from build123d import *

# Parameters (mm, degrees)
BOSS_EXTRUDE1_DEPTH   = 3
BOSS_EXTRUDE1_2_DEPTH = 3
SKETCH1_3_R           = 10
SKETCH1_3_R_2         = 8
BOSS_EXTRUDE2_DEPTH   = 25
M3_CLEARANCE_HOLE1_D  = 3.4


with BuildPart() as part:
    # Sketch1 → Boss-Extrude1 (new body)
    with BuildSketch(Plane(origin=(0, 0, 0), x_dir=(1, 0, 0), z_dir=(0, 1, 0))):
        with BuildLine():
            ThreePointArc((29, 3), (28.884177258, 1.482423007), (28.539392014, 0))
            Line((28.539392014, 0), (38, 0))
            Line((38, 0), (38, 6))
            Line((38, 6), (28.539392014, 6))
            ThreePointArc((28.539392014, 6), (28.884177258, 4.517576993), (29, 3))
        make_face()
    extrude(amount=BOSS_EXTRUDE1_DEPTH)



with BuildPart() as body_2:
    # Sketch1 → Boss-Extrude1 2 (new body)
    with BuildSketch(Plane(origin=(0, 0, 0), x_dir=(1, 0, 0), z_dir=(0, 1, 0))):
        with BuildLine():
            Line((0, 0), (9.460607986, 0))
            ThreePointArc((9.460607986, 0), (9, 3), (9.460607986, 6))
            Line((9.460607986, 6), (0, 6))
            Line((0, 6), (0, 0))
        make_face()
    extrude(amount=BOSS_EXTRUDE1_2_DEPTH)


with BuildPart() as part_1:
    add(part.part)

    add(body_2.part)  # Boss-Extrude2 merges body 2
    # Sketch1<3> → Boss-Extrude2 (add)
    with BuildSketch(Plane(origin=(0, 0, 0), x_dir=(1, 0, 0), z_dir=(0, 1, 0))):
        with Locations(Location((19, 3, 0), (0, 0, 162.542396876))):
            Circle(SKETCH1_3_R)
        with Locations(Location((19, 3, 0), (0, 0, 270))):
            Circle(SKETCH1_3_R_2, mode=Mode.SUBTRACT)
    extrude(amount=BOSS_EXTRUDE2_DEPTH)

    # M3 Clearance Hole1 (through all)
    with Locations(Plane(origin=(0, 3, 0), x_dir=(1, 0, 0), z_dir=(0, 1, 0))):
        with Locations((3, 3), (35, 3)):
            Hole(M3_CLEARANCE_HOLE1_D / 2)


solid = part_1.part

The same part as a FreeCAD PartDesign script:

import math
import FreeCAD as App
import Part
import Sketcher
from FreeCAD import Vector
Q = App.Units.Quantity

doc = App.newDocument("Part")
body = doc.addObject("PartDesign::Body", "Body")

# Sketch on XZ plane
sketch1 = doc.addObject("Sketcher::SketchObject", "Sketch")
body.addObject(sketch1)
sketch1.AttachmentSupport = (doc.XZ_Plane, [""])
sketch1.MapMode = "FlatFace"
sketch1.addGeometry([
    Part.ArcOfCircle(Part.Circle(Vector(19, -3, 0), Vector(0, 0, 1), 10), math.radians(0), math.radians(17.46)),  # 0
    Part.LineSegment(Vector(28.5, 0, 0), Vector(38, 0, 0)),  # 1
    Part.LineSegment(Vector(38, 0, 0), Vector(38, -6, 0)),  # 2
    Part.LineSegment(Vector(38, -6, 0), Vector(28.5, -6, 0)),  # 3
    Part.ArcOfCircle(Part.Circle(Vector(19, -3, 0), Vector(0, 0, 1), 10), math.radians(-17.46), math.radians(0)),  # 4
], False)
sketch1.addConstraint([
    Sketcher.Constraint("Coincident", 0, 2, 1, 1),
    Sketcher.Constraint("Coincident", 1, 2, 2, 1),
    Sketcher.Constraint("Coincident", 2, 2, 3, 1),
    Sketcher.Constraint("Coincident", 3, 2, 4, 1),
    Sketcher.Constraint("Tangent", 4, 2, 0, 1),
    Sketcher.Constraint("Horizontal", 1),
    Sketcher.Constraint("Vertical", 2),
    Sketcher.Constraint("Horizontal", 3),
    Sketcher.Constraint("Equal", 0, 4),
    Sketcher.Constraint("PointOnObject", 0, 2, -1),
    Sketcher.Constraint("Horizontal", 0, 3, 4, 2),
    Sketcher.Constraint("Vertical", 0, 2, 3, 2),
    Sketcher.Constraint("Radius", 0, Q("10 mm")),
    Sketcher.Constraint("DistanceY", 2, 2, 2, 1, Q("6 mm")),
    Sketcher.Constraint("DistanceX", -1, 1, 0, 3, Q("19 mm")),
    Sketcher.Constraint("DistanceX", -1, 1, 1, 2, Q("38 mm")),
])
pad1 = doc.addObject("PartDesign::Pad", "Pad")
body.addObject(pad1)
pad1.Profile = sketch1
pad1.Length = 3
pad1.Reversed = True
body2 = doc.addObject("PartDesign::Body", "Body001")

# Sketch on XZ plane
sketch2 = doc.addObject("Sketcher::SketchObject", "Sketch001")
body2.addObject(sketch2)
sketch2.AttachmentSupport = (doc.getObject("XZ_Plane001"), [""])
sketch2.MapMode = "FlatFace"
sketch2.addGeometry([
    Part.LineSegment(Vector(0, 0, 0), Vector(9, 0, 0)),
    Part.ArcOfCircle(Part.Circle(Vector(19, -3, 0), Vector(0, 0, 1), 10), math.radians(163), math.radians(197)),
    Part.LineSegment(Vector(9, -6, 0), Vector(0, -6, 0)),
    Part.LineSegment(Vector(0, -6, 0), Vector(0, 0, 0)),
], False)
sketch2.addConstraint([
    Sketcher.Constraint("Coincident", 0, 2, 1, 1),
    Sketcher.Constraint("Coincident", 1, 2, 2, 1),
    Sketcher.Constraint("Coincident", 2, 2, 3, 1),
    Sketcher.Constraint("Coincident", 3, 2, 0, 1),
    Sketcher.Constraint("Horizontal", 0),
    Sketcher.Constraint("Horizontal", 2),
    Sketcher.Constraint("Vertical", 3),
    Sketcher.Constraint("Coincident", 3, 2, -1, 1),
    Sketcher.Constraint("Vertical", 0, 2, 1, 2),
    Sketcher.Constraint("Radius", 1, Q("10 mm")),
    Sketcher.Constraint("DistanceY", 3, 1, 3, 2, Q("6 mm")),
    Sketcher.Constraint("DistanceX", -1, 1, 1, 3, Q("19 mm")),
])
pad2 = doc.addObject("PartDesign::Pad", "Pad001")
body2.addObject(pad2)
pad2.Profile = sketch2
pad2.Length = 3
pad2.Reversed = True
body.AllowCompound = True
doc.recompute()

boolean = doc.addObject("PartDesign::Boolean", "Boolean")
body.addObject(boolean)
boolean.Type = "Fuse"
boolean.addObjects([body2])

# Sketch on XZ plane
sketch3 = doc.addObject("Sketcher::SketchObject", "Sketch002")
body.addObject(sketch3)
sketch3.AttachmentSupport = (doc.XZ_Plane, [""])
sketch3.MapMode = "FlatFace"
sketch3.addGeometry([
    Part.Circle(Vector(19, -3, 0), Vector(0, 0, 1), 10),
    Part.Circle(Vector(19, -3, 0), Vector(0, 0, 1), 8),
], False)
sketch3.addConstraint([
    Sketcher.Constraint("Coincident", 1, 3, 0, 3),
    Sketcher.Constraint("Diameter", 0, Q("20 mm")),
    Sketcher.Constraint("Diameter", 1, Q("16 mm")),
    Sketcher.Constraint("DistanceX", -1, 1, 0, 3, Q("19 mm")),
    Sketcher.Constraint("DistanceY", 0, 3, -1, 1, Q("3 mm")),
])
pad3 = doc.addObject("PartDesign::Pad", "Pad002")
body.addObject(pad3)
pad3.Profile = sketch3
pad3.Length = 25
pad3.Reversed = True

# Sketch on XZ plane
sketch4 = doc.addObject("Sketcher::SketchObject", "Sketch003")
body.addObject(sketch4)
sketch4.AttachmentSupport = (doc.XZ_Plane, [""])
sketch4.MapMode = "FlatFace"
sketch4.AttachmentOffset = App.Placement(Vector(0, 0, -3), App.Rotation())
sketch4.addGeometry([
    Part.Circle(Vector(3, -3, 0), Vector(0, 0, 1), 1.7),
    Part.Circle(Vector(35, -3, 0), Vector(0, 0, 1), 1.7),
], False)
sketch4.addConstraint([
    Sketcher.Constraint("Equal", 0, 1),
    Sketcher.Constraint("Horizontal", 0, 3, 1, 3),
    Sketcher.Constraint("Diameter", 0, Q("3.4 mm")),
    Sketcher.Constraint("DistanceX", -1, 1, 0, 3, Q("3 mm")),
    Sketcher.Constraint("DistanceY", 0, 3, -1, 1, Q("3 mm")),
    Sketcher.Constraint("DistanceX", -1, 1, 1, 3, Q("35 mm")),
])
doc.recompute()
hole = doc.addObject("PartDesign::Hole", "Hole")
body.addObject(hole)
hole.Profile = sketch4
hole.ThreadType = "None"
hole.Diameter = 3.4
hole.DepthType = "ThroughAll"
hole.Reversed = True

doc.recompute()
